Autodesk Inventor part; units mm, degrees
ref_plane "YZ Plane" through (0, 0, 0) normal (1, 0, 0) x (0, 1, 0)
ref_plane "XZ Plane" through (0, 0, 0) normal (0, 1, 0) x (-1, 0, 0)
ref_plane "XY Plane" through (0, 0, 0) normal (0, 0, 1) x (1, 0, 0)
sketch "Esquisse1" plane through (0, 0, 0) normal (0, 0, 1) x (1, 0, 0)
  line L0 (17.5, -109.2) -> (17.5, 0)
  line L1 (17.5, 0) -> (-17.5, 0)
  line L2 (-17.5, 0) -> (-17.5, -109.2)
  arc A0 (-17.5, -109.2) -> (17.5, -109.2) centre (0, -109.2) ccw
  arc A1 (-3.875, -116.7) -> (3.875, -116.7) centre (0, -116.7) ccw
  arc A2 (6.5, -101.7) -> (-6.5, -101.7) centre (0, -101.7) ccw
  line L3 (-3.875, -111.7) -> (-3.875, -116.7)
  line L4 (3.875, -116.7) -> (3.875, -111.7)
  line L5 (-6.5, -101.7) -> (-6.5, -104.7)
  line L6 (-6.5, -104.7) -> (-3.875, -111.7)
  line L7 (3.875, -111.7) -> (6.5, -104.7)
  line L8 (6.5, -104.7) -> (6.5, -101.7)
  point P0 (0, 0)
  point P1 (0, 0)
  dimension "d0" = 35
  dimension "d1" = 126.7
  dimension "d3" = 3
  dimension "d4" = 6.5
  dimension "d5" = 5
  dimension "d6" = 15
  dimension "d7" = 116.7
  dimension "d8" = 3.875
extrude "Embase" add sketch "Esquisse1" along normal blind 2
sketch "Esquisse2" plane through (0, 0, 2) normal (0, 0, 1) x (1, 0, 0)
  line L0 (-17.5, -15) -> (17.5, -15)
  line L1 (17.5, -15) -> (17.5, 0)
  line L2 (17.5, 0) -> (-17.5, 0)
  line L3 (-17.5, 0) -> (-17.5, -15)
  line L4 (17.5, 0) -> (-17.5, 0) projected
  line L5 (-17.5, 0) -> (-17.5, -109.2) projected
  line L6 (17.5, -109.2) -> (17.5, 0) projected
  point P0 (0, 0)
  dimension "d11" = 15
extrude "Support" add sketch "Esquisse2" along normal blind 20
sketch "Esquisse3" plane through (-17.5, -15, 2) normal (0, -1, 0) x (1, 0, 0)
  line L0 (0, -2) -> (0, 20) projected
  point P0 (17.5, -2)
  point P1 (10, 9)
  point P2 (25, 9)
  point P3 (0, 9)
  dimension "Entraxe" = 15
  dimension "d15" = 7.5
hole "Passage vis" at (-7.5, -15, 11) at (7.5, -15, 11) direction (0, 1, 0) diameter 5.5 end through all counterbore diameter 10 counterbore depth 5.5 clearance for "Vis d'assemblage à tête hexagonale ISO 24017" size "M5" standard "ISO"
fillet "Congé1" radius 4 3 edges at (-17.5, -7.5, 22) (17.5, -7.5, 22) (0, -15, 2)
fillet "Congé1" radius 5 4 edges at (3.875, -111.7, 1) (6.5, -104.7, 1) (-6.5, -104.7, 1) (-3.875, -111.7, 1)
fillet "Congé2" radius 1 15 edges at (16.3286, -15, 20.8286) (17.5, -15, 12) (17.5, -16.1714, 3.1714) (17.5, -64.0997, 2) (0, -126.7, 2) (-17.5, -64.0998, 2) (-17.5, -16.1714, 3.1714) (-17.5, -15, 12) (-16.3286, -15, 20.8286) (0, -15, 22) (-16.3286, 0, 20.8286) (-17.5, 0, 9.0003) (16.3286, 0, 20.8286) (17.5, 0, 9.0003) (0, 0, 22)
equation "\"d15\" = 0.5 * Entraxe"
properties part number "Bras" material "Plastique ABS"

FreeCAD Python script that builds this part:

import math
import FreeCAD as App
import Part
import Sketcher
Q = App.Units.Quantity


def edges_at(feature, points):
    """Names of the edges that pass closest to the given points."""
    edges = feature.Shape.Edges
    near = lambda p: min(range(len(edges)), key=lambda i: edges[i].distToShape(Part.Vertex(*p))[0])
    return sorted({f"Edge{near(p) + 1}" for p in points})


def add_polygon(sketch, points):
    """Adds a closed chain of lines whose ends are joined by coincident constraints."""
    first, n = sketch.GeometryCount, len(points)
    for a, b in zip(points, points[1:] + points[:1]):
        sketch.addGeometry(Part.LineSegment(App.Vector(*a, 0), App.Vector(*b, 0)), False)
    for i in range(n):
        sketch.addConstraint(Sketcher.Constraint("Coincident", first + i, 2, first + (i + 1) % n, 1))

doc = App.newDocument("Part")
body = doc.addObject("PartDesign::Body", "Body")

# Sketch on XY plane
sketch1 = doc.addObject("Sketcher::SketchObject", "Sketch")
body.addObject(sketch1)
sketch1.AttachmentSupport = (doc.XY_Plane, [""])
sketch1.MapMode = "FlatFace"
sketch1.addGeometry([
    Part.ArcOfCircle(Part.Circle(App.Vector(0, -109.2, 0), App.Vector(0, 0, 1), 17.5), math.radians(180), math.radians(360)),  # 0
    Part.LineSegment(App.Vector(17.5, -109.2, 0), App.Vector(17.5, 0, 0)),  # 1
    Part.LineSegment(App.Vector(17.5, 0, 0), App.Vector(-17.5, 0, 0)),  # 2
    Part.LineSegment(App.Vector(-17.5, 0, 0), App.Vector(-17.5, -109.2, 0)),  # 3
    Part.ArcOfCircle(Part.Circle(App.Vector(0, -116.7, 0), App.Vector(0, 0, 1), 3.9), math.radians(180), math.radians(360)),  # 4
    Part.LineSegment(App.Vector(-3.9, -116.7, 0), App.Vector(-3.9, -111.7, 0)),  # 5
    Part.LineSegment(App.Vector(-3.9, -111.7, 0), App.Vector(-6.5, -104.7, 0)),  # 6
    Part.LineSegment(App.Vector(-6.5, -104.7, 0), App.Vector(-6.5, -101.7, 0)),  # 7
    Part.ArcOfCircle(Part.Circle(App.Vector(0, -101.7, 0), App.Vector(0, 0, 1), 6.5), math.radians(0), math.radians(180)),  # 8
    Part.LineSegment(App.Vector(6.5, -101.7, 0), App.Vector(6.5, -104.7, 0)),  # 9
    Part.LineSegment(App.Vector(6.5, -104.7, 0), App.Vector(3.9, -111.7, 0)),  # 10
    Part.LineSegment(App.Vector(3.9, -111.7, 0), App.Vector(3.9, -116.7, 0)),  # 11
], False)
sketch1.addConstraint([
    Sketcher.Constraint("Tangent", 0, 2, 1, 1),
    Sketcher.Constraint("Coincident", 1, 2, 2, 1),
    Sketcher.Constraint("Coincident", 2, 2, 3, 1),
    Sketcher.Constraint("Tangent", 3, 2, 0, 1),
    Sketcher.Constraint("Tangent", 4, 1, 5, 1),
    Sketcher.Constraint("Coincident", 5, 2, 6, 1),
    Sketcher.Constraint("Coincident", 6, 2, 7, 1),
    Sketcher.Constraint("Tangent", 7, 2, 8, 2),
    Sketcher.Constraint("Tangent", 8, 1, 9, 1),
    Sketcher.Constraint("Coincident", 9, 2, 10, 1),
    Sketcher.Constraint("Coincident", 10, 2, 11, 1),
    Sketcher.Constraint("Tangent", 11, 2, 4, 2),
    Sketcher.Constraint("Vertical", 1),
    Sketcher.Constraint("Horizontal", 2),
    Sketcher.Constraint("Vertical", 3),
    Sketcher.Constraint("Vertical", 5),
    Sketcher.Constraint("Vertical", 7),
    Sketcher.Constraint("Vertical", 9),
    Sketcher.Constraint("Vertical", 11),
    Sketcher.Constraint("Symmetric", 1, 2, 2, 2, -1, 1),
    Sketcher.Constraint("Symmetric", 6, 2, 9, 2, -2),
    Sketcher.Constraint("Symmetric", 5, 2, 10, 2, -2),
    Sketcher.Constraint("Radius", 0, Q("17.5 mm")),
    Sketcher.Constraint("Radius", 8, Q("6.5 mm")),
    Sketcher.Constraint("DistanceY", 5, 1, 5, 2, Q("5 mm")),
    Sketcher.Constraint("DistanceY", 7, 1, 7, 2, Q("3 mm")),
    Sketcher.Constraint("Radius", 4, Q("3.875 mm")),
    Sketcher.Constraint("DistanceY", 4, 3, 8, 3, Q("15 mm")),
    Sketcher.Constraint("DistanceY", 4, 3, -1, 1, Q("116.7 mm")),
    Sketcher.Constraint("DistanceY", 1, 1, 1, 2, Q("109.2 mm")),
])
pad1 = doc.addObject("PartDesign::Pad", "Pad")
body.addObject(pad1)
pad1.Profile = sketch1
pad1.Length = 2

# Sketch on XY plane
sketch2 = doc.addObject("Sketcher::SketchObject", "Sketch001")
body.addObject(sketch2)
sketch2.AttachmentSupport = (doc.XY_Plane, [""])
sketch2.MapMode = "FlatFace"
sketch2.AttachmentOffset = App.Placement(App.Vector(0, 0, 2), App.Rotation())
add_polygon(sketch2, [(-18, 0), (-18, -15), (18, -15), (18, 0)])  # lines 0-3
sketch2.addConstraint([
    Sketcher.Constraint("Vertical", 0),
    Sketcher.Constraint("Horizontal", 1),
    Sketcher.Constraint("Vertical", 2),
    Sketcher.Constraint("Horizontal", 3),
    Sketcher.Constraint("Symmetric", 2, 2, 3, 2, -1, 1),
    Sketcher.Constraint("DistanceY", 0, 2, 0, 1, Q("15 mm")),
    Sketcher.Constraint("DistanceX", 1, 1, 1, 2, Q("35 mm")),
])
pad2 = doc.addObject("PartDesign::Pad", "Pad001")
body.addObject(pad2)
pad2.Profile = sketch2
pad2.Length = 20

# Sketch on XZ plane
sketch3 = doc.addObject("Sketcher::SketchObject", "Sketch002")
body.addObject(sketch3)
sketch3.AttachmentSupport = (doc.XZ_Plane, [""])
sketch3.MapMode = "FlatFace"
sketch3.AttachmentOffset = App.Placement(App.Vector(0, 0, 15), App.Rotation())
sketch3.addGeometry([
    Part.Circle(App.Vector(-7.5, 11, 0), App.Vector(0, 0, 1), 2.8),
    Part.Circle(App.Vector(7.5, 11, 0), App.Vector(0, 0, 1), 2.8),
], False)
sketch3.addConstraint([
    Sketcher.Constraint("Equal", 0, 1),
    Sketcher.Constraint("Symmetric", 0, 3, 1, 3, -2),
    Sketcher.Constraint("Diameter", 0, Q("5.5 mm")),
    Sketcher.Constraint("DistanceY", -1, 1, 0, 3, Q("11 mm")),
    Sketcher.Constraint("DistanceX", 0, 3, 1, 3, Q("15 mm")),
])
doc.recompute()
hole = doc.addObject("PartDesign::Hole", "Hole")
body.addObject(hole)
hole.Profile = sketch3
hole.ThreadType = "None"
hole.Diameter = 5.5
hole.DepthType = "ThroughAll"
hole.HoleCutType = "Counterbore"
hole.HoleCutDiameter = 10
hole.HoleCutDepth = 5.5
doc.recompute()

fillet = doc.addObject("PartDesign::Fillet", "Fillet")
body.addObject(fillet)
fillet.Base = (hole, edges_at(hole, [(-17.5, -7.5, 22), (17.5, -7.5, 22), (0, -15, 2)]))
fillet.Radius = 4
doc.recompute()

fillet2 = doc.addObject("PartDesign::Fillet", "Fillet001")
body.addObject(fillet2)
fillet2.Base = (fillet, edges_at(fillet, [
    (3.875, -111.7, 1),
    (6.5, -104.7, 1),
    (-6.5, -104.7, 1),
    (-3.875, -111.7, 1),
]))
fillet2.Radius = 5
doc.recompute()

fillet3 = doc.addObject("PartDesign::Fillet", "Fillet002")
body.addObject(fillet3)
fillet3.Base = (fillet2, edges_at(fillet2, [
    (16.329, -15, 20.829),
    (17.5, -15, 12),
    (17.5, -16.171, 3.171),
    (17.5, -64.1, 2),
    (0, -126.7, 2),
    (-17.5, -64.1, 2),
    (-17.5, -16.171, 3.171),
    (-17.5, -15, 12),
    (-16.329, -15, 20.829),
    (0, -15, 22),
    (-16.329, 0, 20.829),
    (-17.5, 0, 9),
    (16.329, 0, 20.829),
    (17.5, 0, 9),
    (0, 0, 22),
]))
fillet3.Radius = 1

doc.recompute()
